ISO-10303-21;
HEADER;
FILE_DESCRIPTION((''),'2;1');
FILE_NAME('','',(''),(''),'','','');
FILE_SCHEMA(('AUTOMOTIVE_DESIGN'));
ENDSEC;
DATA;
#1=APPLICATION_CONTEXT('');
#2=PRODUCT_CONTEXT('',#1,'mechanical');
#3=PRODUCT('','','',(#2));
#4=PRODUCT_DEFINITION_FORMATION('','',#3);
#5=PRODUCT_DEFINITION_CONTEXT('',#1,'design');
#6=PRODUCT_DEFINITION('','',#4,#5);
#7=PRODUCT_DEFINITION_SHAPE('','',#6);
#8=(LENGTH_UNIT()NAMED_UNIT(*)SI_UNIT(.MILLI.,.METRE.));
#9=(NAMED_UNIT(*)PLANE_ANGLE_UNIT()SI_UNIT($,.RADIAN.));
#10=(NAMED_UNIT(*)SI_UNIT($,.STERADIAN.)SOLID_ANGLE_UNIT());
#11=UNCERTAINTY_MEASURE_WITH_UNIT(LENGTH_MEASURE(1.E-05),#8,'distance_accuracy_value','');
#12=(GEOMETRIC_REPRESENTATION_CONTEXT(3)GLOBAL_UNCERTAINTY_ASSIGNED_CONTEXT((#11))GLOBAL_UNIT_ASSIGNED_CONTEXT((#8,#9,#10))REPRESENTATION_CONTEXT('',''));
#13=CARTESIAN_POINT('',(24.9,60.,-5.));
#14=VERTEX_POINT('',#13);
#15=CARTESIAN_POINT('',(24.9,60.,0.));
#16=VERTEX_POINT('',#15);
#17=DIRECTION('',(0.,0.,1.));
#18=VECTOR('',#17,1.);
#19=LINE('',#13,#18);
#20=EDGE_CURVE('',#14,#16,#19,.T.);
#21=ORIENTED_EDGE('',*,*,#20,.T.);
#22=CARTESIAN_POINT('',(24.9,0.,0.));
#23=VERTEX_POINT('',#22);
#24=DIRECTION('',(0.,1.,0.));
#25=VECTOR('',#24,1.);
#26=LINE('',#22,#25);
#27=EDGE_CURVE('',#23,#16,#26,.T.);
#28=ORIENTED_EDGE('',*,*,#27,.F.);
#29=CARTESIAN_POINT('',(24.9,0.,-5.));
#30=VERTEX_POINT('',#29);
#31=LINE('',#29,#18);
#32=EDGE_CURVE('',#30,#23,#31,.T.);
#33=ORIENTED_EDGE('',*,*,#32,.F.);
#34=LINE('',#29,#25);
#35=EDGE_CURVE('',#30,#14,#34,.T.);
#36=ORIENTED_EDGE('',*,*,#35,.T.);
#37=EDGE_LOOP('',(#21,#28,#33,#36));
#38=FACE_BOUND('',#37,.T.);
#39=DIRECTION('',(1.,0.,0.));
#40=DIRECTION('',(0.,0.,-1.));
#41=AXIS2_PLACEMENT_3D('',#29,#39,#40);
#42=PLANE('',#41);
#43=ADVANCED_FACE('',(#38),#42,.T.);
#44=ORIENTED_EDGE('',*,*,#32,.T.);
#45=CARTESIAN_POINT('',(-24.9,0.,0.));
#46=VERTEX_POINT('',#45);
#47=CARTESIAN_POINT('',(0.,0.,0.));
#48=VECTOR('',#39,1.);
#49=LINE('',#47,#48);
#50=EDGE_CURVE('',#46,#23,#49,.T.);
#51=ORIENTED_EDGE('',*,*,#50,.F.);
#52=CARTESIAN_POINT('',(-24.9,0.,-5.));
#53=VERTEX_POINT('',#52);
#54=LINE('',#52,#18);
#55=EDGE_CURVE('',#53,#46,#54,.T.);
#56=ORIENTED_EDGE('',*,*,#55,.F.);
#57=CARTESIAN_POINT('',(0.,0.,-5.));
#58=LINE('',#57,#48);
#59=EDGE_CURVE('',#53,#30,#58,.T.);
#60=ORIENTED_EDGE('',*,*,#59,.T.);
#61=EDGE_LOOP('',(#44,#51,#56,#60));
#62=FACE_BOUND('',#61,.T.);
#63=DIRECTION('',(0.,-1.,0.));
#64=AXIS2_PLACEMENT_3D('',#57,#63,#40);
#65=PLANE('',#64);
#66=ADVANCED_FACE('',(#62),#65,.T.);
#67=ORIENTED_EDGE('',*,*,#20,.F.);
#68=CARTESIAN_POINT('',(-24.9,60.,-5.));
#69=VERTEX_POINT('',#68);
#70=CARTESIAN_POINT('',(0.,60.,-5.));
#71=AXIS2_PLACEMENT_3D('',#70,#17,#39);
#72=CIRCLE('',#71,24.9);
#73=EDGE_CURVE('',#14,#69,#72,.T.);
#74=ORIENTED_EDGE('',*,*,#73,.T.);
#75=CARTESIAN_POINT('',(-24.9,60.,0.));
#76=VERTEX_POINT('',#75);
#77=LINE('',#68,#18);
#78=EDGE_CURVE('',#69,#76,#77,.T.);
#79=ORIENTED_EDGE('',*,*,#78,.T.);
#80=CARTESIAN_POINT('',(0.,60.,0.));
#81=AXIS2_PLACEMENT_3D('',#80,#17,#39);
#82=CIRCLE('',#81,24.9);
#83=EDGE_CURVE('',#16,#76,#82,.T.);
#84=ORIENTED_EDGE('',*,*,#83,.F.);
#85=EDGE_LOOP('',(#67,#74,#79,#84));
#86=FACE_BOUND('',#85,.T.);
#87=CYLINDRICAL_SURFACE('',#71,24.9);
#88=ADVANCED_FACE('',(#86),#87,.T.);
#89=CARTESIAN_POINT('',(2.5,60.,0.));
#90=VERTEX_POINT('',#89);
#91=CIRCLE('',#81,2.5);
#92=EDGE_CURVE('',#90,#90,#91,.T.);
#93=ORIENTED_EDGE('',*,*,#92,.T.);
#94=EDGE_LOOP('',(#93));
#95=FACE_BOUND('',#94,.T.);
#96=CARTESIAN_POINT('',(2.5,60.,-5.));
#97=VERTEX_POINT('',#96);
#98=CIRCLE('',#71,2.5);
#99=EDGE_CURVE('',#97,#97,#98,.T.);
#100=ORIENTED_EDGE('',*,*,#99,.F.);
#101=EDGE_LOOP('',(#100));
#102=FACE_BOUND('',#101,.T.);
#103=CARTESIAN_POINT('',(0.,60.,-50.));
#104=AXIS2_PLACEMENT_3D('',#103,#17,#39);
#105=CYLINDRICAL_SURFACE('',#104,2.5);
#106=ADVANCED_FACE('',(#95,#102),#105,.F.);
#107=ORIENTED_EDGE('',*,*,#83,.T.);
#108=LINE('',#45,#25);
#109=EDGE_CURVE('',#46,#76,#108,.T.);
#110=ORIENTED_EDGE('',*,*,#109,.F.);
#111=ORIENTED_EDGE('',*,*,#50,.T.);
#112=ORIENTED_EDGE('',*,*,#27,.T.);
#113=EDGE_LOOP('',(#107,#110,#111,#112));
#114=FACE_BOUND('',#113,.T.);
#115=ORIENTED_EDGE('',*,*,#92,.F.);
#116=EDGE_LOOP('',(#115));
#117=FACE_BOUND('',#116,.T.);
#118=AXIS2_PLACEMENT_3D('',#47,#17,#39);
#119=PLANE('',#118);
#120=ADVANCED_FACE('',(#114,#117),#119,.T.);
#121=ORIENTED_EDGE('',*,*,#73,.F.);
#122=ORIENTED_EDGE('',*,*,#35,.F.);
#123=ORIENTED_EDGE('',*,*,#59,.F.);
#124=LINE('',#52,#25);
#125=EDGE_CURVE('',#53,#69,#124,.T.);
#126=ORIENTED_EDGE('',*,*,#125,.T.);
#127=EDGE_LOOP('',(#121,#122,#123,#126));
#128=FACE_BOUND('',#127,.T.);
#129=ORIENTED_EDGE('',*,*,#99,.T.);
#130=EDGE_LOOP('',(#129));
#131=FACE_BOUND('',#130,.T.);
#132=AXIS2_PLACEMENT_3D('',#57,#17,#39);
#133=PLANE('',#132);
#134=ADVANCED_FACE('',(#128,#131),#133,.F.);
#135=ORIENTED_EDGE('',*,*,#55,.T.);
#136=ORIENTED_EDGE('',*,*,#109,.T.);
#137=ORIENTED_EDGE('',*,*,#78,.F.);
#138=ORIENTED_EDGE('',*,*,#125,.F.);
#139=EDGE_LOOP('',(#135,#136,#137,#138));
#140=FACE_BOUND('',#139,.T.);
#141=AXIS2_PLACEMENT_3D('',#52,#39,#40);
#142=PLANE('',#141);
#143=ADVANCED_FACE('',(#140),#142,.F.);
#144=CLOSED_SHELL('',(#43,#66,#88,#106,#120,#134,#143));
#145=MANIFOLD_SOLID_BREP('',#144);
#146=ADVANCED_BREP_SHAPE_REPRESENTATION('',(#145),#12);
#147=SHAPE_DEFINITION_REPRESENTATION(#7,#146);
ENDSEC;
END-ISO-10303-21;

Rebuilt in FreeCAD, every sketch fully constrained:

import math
import FreeCAD as App
import Part
import Sketcher

V = App.Vector

doc = App.newDocument("Part")
body = doc.addObject("PartDesign::Body", "Body")

sketch1 = body.newObject("Sketcher::SketchObject", "Sketch")
sketch1.AttachmentSupport = (doc.getObject("XY_Plane"), [""])
sketch1.MapMode = "FlatFace"
sketch1.addGeometry(Part.ArcOfCircle(Part.Circle(V(0, 60, 0), V(0, 0, 1), 25), math.radians(0), math.radians(180)), False)
sketch1.addGeometry(Part.LineSegment(V(-25, 60, 0), V(-25, 0, 0)), False)
sketch1.addGeometry(Part.LineSegment(V(-25, 0, 0), V(25, 0, 0)), False)
sketch1.addGeometry(Part.LineSegment(V(25, 0, 0), V(25, 60, 0)), False)
sketch1.addConstraint(Sketcher.Constraint("Tangent", 0, 2, 1, 1))
sketch1.addConstraint(Sketcher.Constraint("Coincident", 1, 2, 2, 1))
sketch1.addConstraint(Sketcher.Constraint("Coincident", 2, 2, 3, 1))
sketch1.addConstraint(Sketcher.Constraint("Tangent", 3, 2, 0, 1))
sketch1.addConstraint(Sketcher.Constraint("Vertical", 1))
sketch1.addConstraint(Sketcher.Constraint("Horizontal", 2))
sketch1.addConstraint(Sketcher.Constraint("Vertical", 3))
sketch1.addConstraint(Sketcher.Constraint("Symmetric", 1, 2, 2, 2, -1, 1))
sketch1.addConstraint(Sketcher.Constraint("Radius", 0, 24.9))
sketch1.addConstraint(Sketcher.Constraint("DistanceY", 1, 2, 1, 1, 60.0))
pad1 = body.newObject("PartDesign::Pad", "Pad")
pad1.Profile = sketch1
pad1.Length = 5
pad1.Reversed = True

sketch2 = body.newObject("Sketcher::SketchObject", "Sketch001")
sketch2.AttachmentSupport = (doc.getObject("XY_Plane"), [""])
sketch2.MapMode = "FlatFace"
sketch2.addGeometry(Part.Circle(V(0, 60, 0), V(0, 0, 1), 2.5), False)
sketch2.addConstraint(Sketcher.Constraint("PointOnObject", 0, 3, -2))
sketch2.addConstraint(Sketcher.Constraint("Diameter", 0, 5.0))
sketch2.addConstraint(Sketcher.Constraint("DistanceY", -1, 1, 0, 3, 60.0))
pocket1 = body.newObject("PartDesign::Pocket", "Pocket")
pocket1.Profile = sketch2
pocket1.Length = 50

doc.recompute()
